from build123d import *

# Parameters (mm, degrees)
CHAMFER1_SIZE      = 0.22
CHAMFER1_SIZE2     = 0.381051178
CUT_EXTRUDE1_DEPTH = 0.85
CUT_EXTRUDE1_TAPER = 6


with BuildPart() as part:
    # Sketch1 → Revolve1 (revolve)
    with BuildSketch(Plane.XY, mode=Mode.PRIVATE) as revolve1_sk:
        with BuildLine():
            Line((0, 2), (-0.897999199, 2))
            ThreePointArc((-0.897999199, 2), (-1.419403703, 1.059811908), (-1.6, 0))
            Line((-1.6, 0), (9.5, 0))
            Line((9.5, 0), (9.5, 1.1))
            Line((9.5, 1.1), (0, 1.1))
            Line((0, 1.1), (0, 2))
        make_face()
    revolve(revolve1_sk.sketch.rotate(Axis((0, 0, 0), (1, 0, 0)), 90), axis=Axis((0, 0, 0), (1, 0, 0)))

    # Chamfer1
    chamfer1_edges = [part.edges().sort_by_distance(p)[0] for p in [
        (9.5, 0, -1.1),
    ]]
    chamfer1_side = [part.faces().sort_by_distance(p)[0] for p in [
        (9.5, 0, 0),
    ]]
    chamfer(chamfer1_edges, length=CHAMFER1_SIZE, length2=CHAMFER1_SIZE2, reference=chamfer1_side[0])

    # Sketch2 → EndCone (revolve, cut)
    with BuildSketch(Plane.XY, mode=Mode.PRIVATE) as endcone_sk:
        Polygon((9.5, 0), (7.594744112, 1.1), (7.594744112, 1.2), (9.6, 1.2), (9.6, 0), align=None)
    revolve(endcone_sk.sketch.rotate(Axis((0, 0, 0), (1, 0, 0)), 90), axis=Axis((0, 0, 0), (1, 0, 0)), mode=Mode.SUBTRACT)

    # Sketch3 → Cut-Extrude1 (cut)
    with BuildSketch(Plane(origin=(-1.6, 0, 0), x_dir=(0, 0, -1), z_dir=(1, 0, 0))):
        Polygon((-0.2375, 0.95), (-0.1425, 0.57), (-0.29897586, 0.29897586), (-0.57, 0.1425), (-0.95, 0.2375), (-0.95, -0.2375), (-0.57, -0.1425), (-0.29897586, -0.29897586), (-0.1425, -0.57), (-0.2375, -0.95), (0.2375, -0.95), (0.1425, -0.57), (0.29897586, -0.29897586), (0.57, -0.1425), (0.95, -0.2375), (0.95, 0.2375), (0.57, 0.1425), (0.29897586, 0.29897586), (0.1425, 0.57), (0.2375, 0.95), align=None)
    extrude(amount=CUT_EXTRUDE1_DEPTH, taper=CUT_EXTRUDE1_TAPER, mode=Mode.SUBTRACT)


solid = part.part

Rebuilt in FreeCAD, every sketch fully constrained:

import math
import FreeCAD as App
import Part
import Sketcher
from FreeCAD import Vector
Q = App.Units.Quantity


def edges_at(feature, points):
    """Names of the edges that pass closest to the given points."""
    edges = feature.Shape.Edges
    near = lambda p: min(range(len(edges)), key=lambda i: edges[i].distToShape(Part.Vertex(*p))[0])
    return sorted({f"Edge{near(p) + 1}" for p in points})


def add_polygon(sketch, points):
    """Adds a closed chain of lines whose ends are joined by coincident constraints."""
    first, n = sketch.GeometryCount, len(points)
    for a, b in zip(points, points[1:] + points[:1]):
        sketch.addGeometry(Part.LineSegment(App.Vector(*a, 0), App.Vector(*b, 0)), False)
    for i in range(n):
        sketch.addConstraint(Sketcher.Constraint("Coincident", first + i, 2, first + (i + 1) % n, 1))

doc = App.newDocument("Part")
params = doc.addObject("Spreadsheet::Sheet", "Params")
for row, (alias, value) in enumerate([
    ("sketch1_radius", "3.2 mm"),
    ("sketch1_width", "11.1 mm"),
    ("sketch1_width2", "9.5 mm"),
    ("sketch1_height", "1.1 mm"),
    ("sketch1_height2", "0.9 mm"),
    ("revolution_angle", "360 deg"),
    ("chamfer_size", "0.22 mm"),
    ("chamfer_size2", "0.381051 mm"),
    ("sketch2_width", "0.1 mm"),
    ("sketch2_height", "1.2 mm"),
    ("groove_angle", "360 deg"),
    ("pocket1_length", "0.85 mm"),
    ("pocket1_taper", "-6 deg"),
], start=1):
    params.set(f"A{row}", alias)
    params.set(f"B{row}", "=" + value)
    params.setAlias(f"B{row}", alias)

body = doc.addObject("PartDesign::Body", "Body")

# Sketch on XY plane
sketch1 = body.newObject("Sketcher::SketchObject", "Sketch")
sketch1.AttachmentSupport = (doc.getObject("XY_Plane"), [""])
sketch1.MapMode = "FlatFace"
sketch1.addGeometry([
    Part.LineSegment(Vector(0, 2, 0), Vector(-0.9, 2, 0)),  # 0
    Part.ArcOfCircle(Part.Circle(Vector(1.6, 0, 0), Vector(0, 0, 1), 3.2), math.radians(141), math.radians(180)),  # 1
    Part.LineSegment(Vector(-1.6, 0, 0), Vector(9.5, 0, 0)),  # 2
    Part.LineSegment(Vector(9.5, 0, 0), Vector(9.5, 1.1, 0)),  # 3
    Part.LineSegment(Vector(9.5, 1.1, 0), Vector(0, 1.1, 0)),  # 4
    Part.LineSegment(Vector(0, 1.1, 0), Vector(0, 2, 0)),  # 5
], False)
sketch1.addConstraint([
    Sketcher.Constraint("Coincident", 0, 2, 1, 1),
    Sketcher.Constraint("Coincident", 1, 2, 2, 1),
    Sketcher.Constraint("Coincident", 2, 2, 3, 1),
    Sketcher.Constraint("Coincident", 3, 2, 4, 1),
    Sketcher.Constraint("Coincident", 4, 2, 5, 1),
    Sketcher.Constraint("Coincident", 5, 2, 0, 1),
    Sketcher.Constraint("Horizontal", 0),
    Sketcher.Constraint("Horizontal", 2),
    Sketcher.Constraint("Vertical", 3),
    Sketcher.Constraint("Horizontal", 4),
    Sketcher.Constraint("Vertical", 5),
    Sketcher.Constraint("PointOnObject", 1, 3, -1),
    Sketcher.Constraint("PointOnObject", 1, 2, -1),
    Sketcher.Constraint("PointOnObject", 4, 2, -2),
    Sketcher.Constraint("Radius", 1, 3.2),
    Sketcher.Constraint("DistanceX", 2, 1, 2, 2, 11.1),
    Sketcher.Constraint("DistanceX", 4, 2, 4, 1, 9.5),
    Sketcher.Constraint("DistanceY", 3, 1, 3, 2, 1.1),
    Sketcher.Constraint("DistanceY", 5, 1, 5, 2, 0.9),
])
sketch1.setExpression("Constraints[14]", "Params.sketch1_radius")
sketch1.setExpression("Constraints[15]", "Params.sketch1_width")
sketch1.setExpression("Constraints[16]", "Params.sketch1_width2")
sketch1.setExpression("Constraints[17]", "Params.sketch1_height")
sketch1.setExpression("Constraints[18]", "Params.sketch1_height2")
revolution = body.newObject("PartDesign::Revolution", "Revolution")
revolution.Profile = sketch1
revolution.ReferenceAxis = (sketch1, ["H_Axis"])
revolution.setExpression("Angle", "Params.revolution_angle")
doc.recompute()

chamfer = body.newObject("PartDesign::Chamfer", "Chamfer")
chamfer.Base = (revolution, edges_at(revolution, [(9.5, 0, -1.1)]))
chamfer.ChamferType = "Two distances"
chamfer.setExpression("Size", "Params.chamfer_size")
chamfer.setExpression("Size2", "Params.chamfer_size2")

# Sketch on XY plane
sketch2 = body.newObject("Sketcher::SketchObject", "Sketch001")
sketch2.AttachmentSupport = (doc.getObject("XY_Plane"), [""])
sketch2.MapMode = "FlatFace"
add_polygon(sketch2, [(7.59, 1.1), (9.5, 0), (9.6, 0), (9.6, 1.2), (7.59, 1.2)])  # lines 0-4
sketch2.addConstraint([
    Sketcher.Constraint("Horizontal", 1),
    Sketcher.Constraint("Vertical", 2),
    Sketcher.Constraint("Horizontal", 3),
    Sketcher.Constraint("Vertical", 4),
    Sketcher.Constraint("PointOnObject", 0, 2, -1),
    Sketcher.Constraint("Equal", 1, 4),
    Sketcher.Constraint("Angle", 0, Q("-30 deg")),
    Sketcher.Constraint("DistanceX", 1, 1, 1, 2, 0.1),
    Sketcher.Constraint("DistanceY", 2, 1, 2, 2, 1.2),
    Sketcher.Constraint("DistanceX", -1, 1, 0, 2, 9.5),
])
sketch2.setExpression("Constraints[12]", "Params.sketch2_width")
sketch2.setExpression("Constraints[13]", "Params.sketch2_height")
groove = body.newObject("PartDesign::Groove", "Groove")
groove.Profile = sketch2
groove.ReferenceAxis = (sketch2, ["H_Axis"])
groove.setExpression("Angle", "Params.groove_angle")

# Sketch on YZ plane
sketch3 = body.newObject("Sketcher::SketchObject", "Sketch002")
sketch3.AttachmentSupport = (doc.getObject("YZ_Plane"), [""])
sketch3.MapMode = "FlatFace"
sketch3.AttachmentOffset = App.Placement(Vector(0, 0, -1.6), App.Rotation())
add_polygon(sketch3, [(0.95, 0.24), (0.57, 0.14), (0.3, 0.3), (0.14, 0.57), (0.24, 0.95), (-0.24, 0.95), (-0.14, 0.57), (-0.3, 0.3), (-0.57, 0.14), (-0.95, 0.24), (-0.95, -0.24), (-0.57, -0.14), (-0.3, -0.3), (-0.14, -0.57), (-0.24, -0.95), (0.24, -0.95), (0.14, -0.57), (0.3, -0.3), (0.57, -0.14), (0.95, -0.24)])  # lines 0-19
sketch3.addConstraint([
    Sketcher.Constraint("Horizontal", 4),
    Sketcher.Constraint("Vertical", 9),
    Sketcher.Constraint("Horizontal", 14),
    Sketcher.Constraint("Vertical", 19),
    Sketcher.Constraint("Symmetric", 0, 2, 10, 2, -1, 1),
    Sketcher.Constraint("Symmetric", 1, 2, 11, 2, -1, 1),
    Sketcher.Constraint("Symmetric", 2, 2, 12, 2, -1, 1),
    Sketcher.Constraint("Symmetric", 3, 2, 13, 2, -1, 1),
    Sketcher.Constraint("Symmetric", 5, 2, 15, 2, -1, 1),
    Sketcher.Constraint("Symmetric", 6, 2, 16, 2, -1, 1),
    Sketcher.Constraint("Symmetric", 7, 2, 17, 2, -1, 1),
    Sketcher.Constraint("Symmetric", 8, 2, 18, 2, -1, 1),
    Sketcher.Constraint("Symmetric", 2, 2, 5, 2, -2),
    Sketcher.Constraint("Symmetric", 1, 2, 6, 2, -2),
    Sketcher.Constraint("Symmetric", 0, 2, 7, 2, -2),
    Sketcher.Constraint("Perpendicular", 0, 5),
    Sketcher.Constraint("Perpendicular", 1, 6),
    Sketcher.Constraint("Perpendicular", 3, 8),
    Sketcher.Constraint("Perpendicular", 5, 10),
    Sketcher.Constraint("Perpendicular", 10, 15),
    Sketcher.Constraint("Horizontal", 9, 2, 18, 2),
    Sketcher.Constraint("Equal", 14, 9),
    Sketcher.Constraint("Equal", 1, 2),
    Sketcher.Constraint("Equal", 0, 3),
    Sketcher.Constraint("Angle", 1, Q("150 deg")),
    Sketcher.Constraint("DistanceX", 4, 2, 4, 1, 0.475),
    Sketcher.Constraint("DistanceX", -1, 1, 0, 2, 0.57),
    Sketcher.Constraint("DistanceY", -1, 1, 3, 2, 0.95),
    Sketcher.Constraint("DistanceX", 4, 2, 2, 2, 0.38),
])
pocket1 = body.newObject("PartDesign::Pocket", "Pocket")
pocket1.Profile = sketch3
pocket1.setExpression("Length", "Params.pocket1_length")
pocket1.Reversed = True
pocket1.setExpression("TaperAngle", "Params.pocket1_taper")

doc.recompute()
